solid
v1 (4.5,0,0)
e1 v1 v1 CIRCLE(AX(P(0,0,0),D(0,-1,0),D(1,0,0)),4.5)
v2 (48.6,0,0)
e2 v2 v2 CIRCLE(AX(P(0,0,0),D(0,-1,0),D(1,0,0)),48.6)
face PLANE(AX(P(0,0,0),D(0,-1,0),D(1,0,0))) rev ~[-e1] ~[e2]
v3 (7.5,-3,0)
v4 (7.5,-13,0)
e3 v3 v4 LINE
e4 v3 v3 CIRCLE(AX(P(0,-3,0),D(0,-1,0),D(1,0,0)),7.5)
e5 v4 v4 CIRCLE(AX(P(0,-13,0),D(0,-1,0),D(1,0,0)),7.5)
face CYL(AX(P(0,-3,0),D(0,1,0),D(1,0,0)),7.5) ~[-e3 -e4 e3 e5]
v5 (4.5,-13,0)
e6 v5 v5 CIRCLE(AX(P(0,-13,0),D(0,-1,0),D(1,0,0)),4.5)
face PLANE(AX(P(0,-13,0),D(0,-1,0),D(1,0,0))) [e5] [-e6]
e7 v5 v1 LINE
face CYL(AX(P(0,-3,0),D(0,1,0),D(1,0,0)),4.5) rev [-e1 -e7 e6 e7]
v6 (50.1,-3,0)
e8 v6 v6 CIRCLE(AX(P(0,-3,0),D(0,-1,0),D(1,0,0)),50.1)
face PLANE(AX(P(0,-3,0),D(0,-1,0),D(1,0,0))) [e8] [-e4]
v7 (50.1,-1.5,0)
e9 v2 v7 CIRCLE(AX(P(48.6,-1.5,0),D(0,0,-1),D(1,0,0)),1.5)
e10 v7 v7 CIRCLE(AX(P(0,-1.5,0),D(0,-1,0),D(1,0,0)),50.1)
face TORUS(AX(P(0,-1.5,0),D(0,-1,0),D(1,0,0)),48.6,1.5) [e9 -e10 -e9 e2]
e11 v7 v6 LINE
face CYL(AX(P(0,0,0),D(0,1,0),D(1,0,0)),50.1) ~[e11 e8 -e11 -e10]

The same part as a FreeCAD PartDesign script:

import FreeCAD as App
import Part
import Sketcher


def edges_at(feature, points):
    """Names of the edges that pass closest to the given points."""
    edges = feature.Shape.Edges
    near = lambda p: min(range(len(edges)), key=lambda i: edges[i].distToShape(Part.Vertex(*p))[0])
    return sorted({f"Edge{near(p) + 1}" for p in points})

doc = App.newDocument("Part")
body = doc.addObject("PartDesign::Body", "Body")

# Sketch on XZ plane
sketch1 = body.newObject("Sketcher::SketchObject", "Sketch")
sketch1.AttachmentSupport = (doc.getObject("XZ_Plane"), [""])
sketch1.MapMode = "FlatFace"
sketch1.addGeometry(Part.Circle(App.Vector(0, 0, 0), App.Vector(0, 0, 1), 50.1), False)
sketch1.addGeometry(Part.Circle(App.Vector(0, 0, 0), App.Vector(0, 0, 1), 4.5), False)
sketch1.addConstraint(Sketcher.Constraint("Coincident", 0, 3, -1, 1))
sketch1.addConstraint(Sketcher.Constraint("Coincident", 1, 3, -1, 1))
sketch1.addConstraint(Sketcher.Constraint("Diameter", 1, 9.0))
sketch1.addConstraint(Sketcher.Constraint("Diameter", 0, 100.2))
pad1 = body.newObject("PartDesign::Pad", "Pad")
pad1.Profile = sketch1
pad1.Length = 3

# Sketch on XZ plane
sketch2 = body.newObject("Sketcher::SketchObject", "Sketch001")
sketch2.AttachmentSupport = (doc.getObject("XZ_Plane"), [""])
sketch2.MapMode = "FlatFace"
sketch2.AttachmentOffset = App.Placement(App.Vector(0, 0, 3), App.Rotation())
sketch2.addGeometry(Part.Circle(App.Vector(0, 0, 0), App.Vector(0, 0, 1), 7.5), False)
sketch2.addGeometry(Part.Circle(App.Vector(0, 0, 0), App.Vector(0, 0, 1), 4.5), False)
sketch2.addConstraint(Sketcher.Constraint("Coincident", 0, 3, -1, 1))
sketch2.addConstraint(Sketcher.Constraint("Coincident", 1, 3, -1, 1))
sketch2.addConstraint(Sketcher.Constraint("Diameter", 0, 15.0))
sketch2.addConstraint(Sketcher.Constraint("Diameter", 1, 9.0))
pad2 = body.newObject("PartDesign::Pad", "Pad001")
pad2.Profile = sketch2
pad2.Length = 10
doc.recompute()

fillet = body.newObject("PartDesign::Fillet", "Fillet")
fillet.Base = (pad2, edges_at(pad2, [(-50.1, 0, 0)]))
fillet.Radius = 1.5

doc.recompute()
